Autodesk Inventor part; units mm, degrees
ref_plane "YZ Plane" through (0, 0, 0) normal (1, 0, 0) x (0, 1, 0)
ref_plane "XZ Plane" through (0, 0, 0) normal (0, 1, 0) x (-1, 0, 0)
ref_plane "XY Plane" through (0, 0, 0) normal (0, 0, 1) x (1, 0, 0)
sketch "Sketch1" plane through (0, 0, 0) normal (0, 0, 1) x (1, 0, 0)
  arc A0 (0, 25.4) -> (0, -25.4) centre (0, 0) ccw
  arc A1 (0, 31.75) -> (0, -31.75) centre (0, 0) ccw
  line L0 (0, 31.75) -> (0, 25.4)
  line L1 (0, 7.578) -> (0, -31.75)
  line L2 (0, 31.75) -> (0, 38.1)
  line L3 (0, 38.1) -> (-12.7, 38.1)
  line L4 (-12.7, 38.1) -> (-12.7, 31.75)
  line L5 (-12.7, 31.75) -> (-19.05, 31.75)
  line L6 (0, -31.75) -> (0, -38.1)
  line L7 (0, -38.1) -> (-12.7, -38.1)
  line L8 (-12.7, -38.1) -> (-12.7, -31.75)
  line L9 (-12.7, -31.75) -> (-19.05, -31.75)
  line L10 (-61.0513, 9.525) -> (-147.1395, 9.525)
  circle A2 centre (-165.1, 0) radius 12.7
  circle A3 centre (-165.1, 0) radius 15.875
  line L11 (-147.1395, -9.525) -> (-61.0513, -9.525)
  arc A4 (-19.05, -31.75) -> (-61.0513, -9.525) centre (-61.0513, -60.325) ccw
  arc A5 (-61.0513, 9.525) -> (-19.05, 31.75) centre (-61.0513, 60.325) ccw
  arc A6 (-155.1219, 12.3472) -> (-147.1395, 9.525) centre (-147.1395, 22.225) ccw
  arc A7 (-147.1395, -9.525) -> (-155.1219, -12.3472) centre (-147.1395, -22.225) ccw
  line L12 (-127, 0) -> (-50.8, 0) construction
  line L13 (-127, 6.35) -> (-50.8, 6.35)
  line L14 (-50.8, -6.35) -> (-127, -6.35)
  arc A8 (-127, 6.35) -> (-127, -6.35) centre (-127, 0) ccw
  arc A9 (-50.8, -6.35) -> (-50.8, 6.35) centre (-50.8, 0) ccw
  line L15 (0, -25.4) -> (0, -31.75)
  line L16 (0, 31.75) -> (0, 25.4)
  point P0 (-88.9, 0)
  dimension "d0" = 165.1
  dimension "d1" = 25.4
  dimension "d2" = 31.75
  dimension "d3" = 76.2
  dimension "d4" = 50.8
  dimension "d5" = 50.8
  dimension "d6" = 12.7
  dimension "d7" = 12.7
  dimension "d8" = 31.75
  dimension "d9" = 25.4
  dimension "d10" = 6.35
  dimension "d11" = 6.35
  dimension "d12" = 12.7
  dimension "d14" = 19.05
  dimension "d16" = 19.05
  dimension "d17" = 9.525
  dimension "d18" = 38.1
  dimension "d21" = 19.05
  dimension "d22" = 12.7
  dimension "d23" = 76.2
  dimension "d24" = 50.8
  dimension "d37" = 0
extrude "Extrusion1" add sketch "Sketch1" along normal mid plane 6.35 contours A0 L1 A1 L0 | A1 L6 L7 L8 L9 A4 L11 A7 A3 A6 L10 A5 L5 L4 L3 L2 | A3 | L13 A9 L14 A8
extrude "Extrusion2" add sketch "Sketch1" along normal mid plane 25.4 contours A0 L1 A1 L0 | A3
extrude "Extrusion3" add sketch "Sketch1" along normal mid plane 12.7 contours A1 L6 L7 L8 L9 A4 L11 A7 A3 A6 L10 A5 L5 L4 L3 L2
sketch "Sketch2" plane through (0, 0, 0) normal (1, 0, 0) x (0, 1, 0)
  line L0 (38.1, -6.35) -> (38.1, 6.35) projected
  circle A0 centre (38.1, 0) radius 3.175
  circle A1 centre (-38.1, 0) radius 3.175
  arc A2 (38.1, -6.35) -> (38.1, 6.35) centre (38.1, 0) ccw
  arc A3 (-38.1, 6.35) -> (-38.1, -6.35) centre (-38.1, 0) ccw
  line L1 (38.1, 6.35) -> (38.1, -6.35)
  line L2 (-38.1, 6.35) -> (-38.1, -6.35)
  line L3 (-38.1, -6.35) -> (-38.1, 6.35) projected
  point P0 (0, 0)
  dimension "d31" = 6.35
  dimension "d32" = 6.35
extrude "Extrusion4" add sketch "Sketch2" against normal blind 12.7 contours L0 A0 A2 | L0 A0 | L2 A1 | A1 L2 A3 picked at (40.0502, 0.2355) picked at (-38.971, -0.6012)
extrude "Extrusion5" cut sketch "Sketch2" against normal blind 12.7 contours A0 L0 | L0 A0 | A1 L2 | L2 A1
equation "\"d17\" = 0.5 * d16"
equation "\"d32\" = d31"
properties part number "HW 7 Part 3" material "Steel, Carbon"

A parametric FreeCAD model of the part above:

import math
import FreeCAD as App
import Part
import Sketcher
Q = App.Units.Quantity

doc = App.newDocument("Part")
body = doc.addObject("PartDesign::Body", "Body")

sketch1 = body.newObject("Sketcher::SketchObject", "Sketch")
sketch1.AttachmentSupport = (doc.getObject("XY_Plane"), [""])
sketch1.MapMode = "FlatFace"
sketch1.addGeometry(Part.ArcOfCircle(Part.Circle(App.Vector(0, 0, 0), App.Vector(0, 0, 1), 25.4), math.radians(90), math.radians(270)), False)
sketch1.addGeometry(Part.LineSegment(App.Vector(0, 25.4, 0), App.Vector(0, 38.1, 0)), False)
sketch1.addGeometry(Part.LineSegment(App.Vector(0, 38.1, 0), App.Vector(-12.7, 38.1, 0)), False)
sketch1.addGeometry(Part.LineSegment(App.Vector(-12.7, 38.1, 0), App.Vector(-12.7, 31.75, 0)), False)
sketch1.addGeometry(Part.LineSegment(App.Vector(-12.7, 31.75, 0), App.Vector(-19.05, 31.75, 0)), False)
sketch1.addGeometry(Part.ArcOfCircle(Part.Circle(App.Vector(-61.0513, 60.325, 0), App.Vector(0, 0, 1), 50.8), math.radians(-90), math.radians(-34.228868)), False)
sketch1.addGeometry(Part.LineSegment(App.Vector(-61.0513, 9.525, 0), App.Vector(-147.1395, 9.525, 0)), False)
sketch1.addGeometry(Part.ArcOfCircle(Part.Circle(App.Vector(-147.1395, 22.225, 0), App.Vector(0, 0, 1), 12.699986), math.radians(-128.942203), math.radians(-90)), False)
sketch1.addGeometry(Part.ArcOfCircle(Part.Circle(App.Vector(-165.1, 0, 0), App.Vector(0, 0, 1), 15.875), math.radians(51.057403), math.radians(308.942597)), False)
sketch1.addGeometry(Part.ArcOfCircle(Part.Circle(App.Vector(-147.1395, -22.225, 0), App.Vector(0, 0, 1), 12.7), math.radians(90), math.radians(128.942203)), False)
sketch1.addGeometry(Part.LineSegment(App.Vector(-147.1395, -9.525, 0), App.Vector(-61.0513, -9.525, 0)), False)
sketch1.addGeometry(Part.ArcOfCircle(Part.Circle(App.Vector(-61.0513, -60.325, 0), App.Vector(0, 0, 1), 50.799998), math.radians(34.228868), math.radians(90)), False)
sketch1.addGeometry(Part.LineSegment(App.Vector(-19.05, -31.75, 0), App.Vector(-12.7, -31.75, 0)), False)
sketch1.addGeometry(Part.LineSegment(App.Vector(-12.7, -31.75, 0), App.Vector(-12.7, -38.1, 0)), False)
sketch1.addGeometry(Part.LineSegment(App.Vector(-12.7, -38.1, 0), App.Vector(0, -38.1, 0)), False)
sketch1.addGeometry(Part.LineSegment(App.Vector(0, -38.1, 0), App.Vector(0, -25.4, 0)), False)
sketch1.addGeometry(Part.Circle(App.Vector(-165.1, 0, 0), App.Vector(0, 0, 1), 12.7), False)
sketch1.addConstraint(Sketcher.Constraint("Coincident", 0, 1, 1, 1))
sketch1.addConstraint(Sketcher.Constraint("Coincident", 1, 2, 2, 1))
sketch1.addConstraint(Sketcher.Constraint("Coincident", 2, 2, 3, 1))
sketch1.addConstraint(Sketcher.Constraint("Coincident", 3, 2, 4, 1))
sketch1.addConstraint(Sketcher.Constraint("Coincident", 4, 2, 5, 2))
sketch1.addConstraint(Sketcher.Constraint("Tangent", 5, 1, 6, 1))
sketch1.addConstraint(Sketcher.Constraint("Tangent", 6, 2, 7, 2))
sketch1.addConstraint(Sketcher.Constraint("Tangent", 7, 1, 8, 1))
sketch1.addConstraint(Sketcher.Constraint("Tangent", 8, 2, 9, 2))
sketch1.addConstraint(Sketcher.Constraint("Tangent", 9, 1, 10, 1))
sketch1.addConstraint(Sketcher.Constraint("Tangent", 10, 2, 11, 2))
sketch1.addConstraint(Sketcher.Constraint("Coincident", 11, 1, 12, 1))
sketch1.addConstraint(Sketcher.Constraint("Coincident", 12, 2, 13, 1))
sketch1.addConstraint(Sketcher.Constraint("Coincident", 13, 2, 14, 1))
sketch1.addConstraint(Sketcher.Constraint("Coincident", 14, 2, 15, 1))
sketch1.addConstraint(Sketcher.Constraint("Coincident", 15, 2, 0, 2))
sketch1.addConstraint(Sketcher.Constraint("Vertical", 1))
sketch1.addConstraint(Sketcher.Constraint("Horizontal", 2))
sketch1.addConstraint(Sketcher.Constraint("Vertical", 3))
sketch1.addConstraint(Sketcher.Constraint("Horizontal", 4))
sketch1.addConstraint(Sketcher.Constraint("Horizontal", 6))
sketch1.addConstraint(Sketcher.Constraint("Horizontal", 10))
sketch1.addConstraint(Sketcher.Constraint("Horizontal", 12))
sketch1.addConstraint(Sketcher.Constraint("Vertical", 13))
sketch1.addConstraint(Sketcher.Constraint("Horizontal", 14))
sketch1.addConstraint(Sketcher.Constraint("Vertical", 15))
sketch1.addConstraint(Sketcher.Constraint("Coincident", 0, 3, -1, 1))
sketch1.addConstraint(Sketcher.Constraint("Coincident", 16, 3, 8, 3))
sketch1.addConstraint(Sketcher.Constraint("Equal", 7, 9))
sketch1.addConstraint(Sketcher.Constraint("Equal", 5, 11))
sketch1.addConstraint(Sketcher.Constraint("Equal", 9, 16))
sketch1.addConstraint(Sketcher.Constraint("Symmetric", 1, 2, 14, 2, -1, 1))
sketch1.addConstraint(Sketcher.Constraint("Symmetric", 7, 3, 9, 3, -1))
sketch1.addConstraint(Sketcher.Constraint("Symmetric", 4, 2, 11, 1, -1))
sketch1.addConstraint(Sketcher.Constraint("PointOnObject", 0, 1, -2))
sketch1.addConstraint(Sketcher.Constraint("Vertical", 3, 2, 12, 2))
sketch1.addConstraint(Sketcher.Constraint("Equal", 14, 1))
sketch1.addConstraint(Sketcher.Constraint("Equal", 12, 3))
sketch1.addConstraint(Sketcher.Constraint("Diameter", 16, Q("1 in")))
sketch1.addConstraint(Sketcher.Constraint("Radius", 0, Q("1 in")))
sketch1.addConstraint(Sketcher.Constraint("Radius", 5, Q("2 in")))
sketch1.addConstraint(Sketcher.Constraint("DistanceX", 2, 2, 2, 1, Q("0.5 in")))
sketch1.addConstraint(Sketcher.Constraint("Radius", 8, Q("0.625 in")))
sketch1.addConstraint(Sketcher.Constraint("DistanceX", 4, 2, 4, 1, Q("0.25 in")))
sketch1.addConstraint(Sketcher.Constraint("DistanceX", 8, 3, -1, 1, Q("6.5 in")))
sketch1.addConstraint(Sketcher.Constraint("DistanceY", 9, 3, 6, 2, Q("1.25 in")))
pad1 = body.newObject("PartDesign::Pad", "Pad")
pad1.Profile = sketch1
pad1.Length = Q("0.25 in")
pad1.Midplane = True

sketch2 = body.newObject("Sketcher::SketchObject", "Sketch001")
sketch2.AttachmentSupport = (doc.getObject("XY_Plane"), [""])
sketch2.MapMode = "FlatFace"
sketch2.addGeometry(Part.ArcOfCircle(Part.Circle(App.Vector(0, 0, 0), App.Vector(0, 0, 1), 25.4), math.radians(90), math.radians(270)), False)
sketch2.addGeometry(Part.LineSegment(App.Vector(0, 25.4, 0), App.Vector(0, 31.75, 0)), False)
sketch2.addGeometry(Part.ArcOfCircle(Part.Circle(App.Vector(0, 0, 0), App.Vector(0, 0, 1), 31.75), math.radians(90), math.radians(270)), False)
sketch2.addGeometry(Part.LineSegment(App.Vector(0, -31.75, 0), App.Vector(0, -25.4, 0)), False)
sketch2.addGeometry(Part.Circle(App.Vector(-165.1, 0, 0), App.Vector(0, 0, 1), 15.875), False)
sketch2.addGeometry(Part.Circle(App.Vector(-165.1, 0, 0), App.Vector(0, 0, 1), 12.7), False)
sketch2.addConstraint(Sketcher.Constraint("Coincident", 0, 1, 1, 1))
sketch2.addConstraint(Sketcher.Constraint("Coincident", 1, 2, 2, 1))
sketch2.addConstraint(Sketcher.Constraint("Coincident", 2, 2, 3, 1))
sketch2.addConstraint(Sketcher.Constraint("Coincident", 3, 2, 0, 2))
sketch2.addConstraint(Sketcher.Constraint("Vertical", 1))
sketch2.addConstraint(Sketcher.Constraint("Vertical", 3))
sketch2.addConstraint(Sketcher.Constraint("Coincident", 0, 3, -1, 1))
sketch2.addConstraint(Sketcher.Constraint("Coincident", 2, 3, -1, 1))
sketch2.addConstraint(Sketcher.Constraint("Coincident", 5, 3, 4, 3))
sketch2.addConstraint(Sketcher.Constraint("PointOnObject", 4, 3, -1))
sketch2.addConstraint(Sketcher.Constraint("PointOnObject", 0, 1, -2))
sketch2.addConstraint(Sketcher.Constraint("PointOnObject", 2, 2, -2))
sketch2.addConstraint(Sketcher.Constraint("Diameter", 5, Q("1 in")))
sketch2.addConstraint(Sketcher.Constraint("Radius", 0, Q("1 in")))
sketch2.addConstraint(Sketcher.Constraint("Diameter", 4, Q("1.25 in")))
sketch2.addConstraint(Sketcher.Constraint("Radius", 2, Q("1.25 in")))
sketch2.addConstraint(Sketcher.Constraint("DistanceX", 4, 3, -1, 1, Q("6.5 in")))
pad2 = body.newObject("PartDesign::Pad", "Pad001")
pad2.Profile = sketch2
pad2.Length = Q("1 in")
pad2.Midplane = True

sketch3 = body.newObject("Sketcher::SketchObject", "Sketch002")
sketch3.AttachmentSupport = (doc.getObject("XY_Plane"), [""])
sketch3.MapMode = "FlatFace"
sketch3.addGeometry(Part.ArcOfCircle(Part.Circle(App.Vector(0, 0, 0), App.Vector(0, 0, 1), 31.75), math.radians(90), math.radians(270)), False)
sketch3.addGeometry(Part.LineSegment(App.Vector(0, 31.75, 0), App.Vector(0, 38.1, 0)), False)
sketch3.addGeometry(Part.LineSegment(App.Vector(0, 38.1, 0), App.Vector(-12.7, 38.1, 0)), False)
sketch3.addGeometry(Part.LineSegment(App.Vector(-12.7, 38.1, 0), App.Vector(-12.7, 31.75, 0)), False)
sketch3.addGeometry(Part.LineSegment(App.Vector(-12.7, 31.75, 0), App.Vector(-19.05, 31.75, 0)), False)
sketch3.addGeometry(Part.ArcOfCircle(Part.Circle(App.Vector(-61.0513, 60.325, 0), App.Vector(0, 0, 1), 50.8), math.radians(-90), math.radians(-34.228868)), False)
sketch3.addGeometry(Part.LineSegment(App.Vector(-61.0513, 9.525, 0), App.Vector(-147.1395, 9.525, 0)), False)
sketch3.addGeometry(Part.ArcOfCircle(Part.Circle(App.Vector(-147.1395, 22.225, 0), App.Vector(0, 0, 1), 12.699986), math.radians(-128.942203), math.radians(-90)), False)
sketch3.addGeometry(Part.ArcOfCircle(Part.Circle(App.Vector(-165.1, 0, 0), App.Vector(0, 0, 1), 15.875), math.radians(-51.057403), math.radians(51.057403)), False)
sketch3.addGeometry(Part.ArcOfCircle(Part.Circle(App.Vector(-147.1395, -22.225, 0), App.Vector(0, 0, 1), 12.7), math.radians(90), math.radians(128.942203)), False)
sketch3.addGeometry(Part.LineSegment(App.Vector(-147.1395, -9.525, 0), App.Vector(-61.0513, -9.525, 0)), False)
sketch3.addGeometry(Part.ArcOfCircle(Part.Circle(App.Vector(-61.0513, -60.325, 0), App.Vector(0, 0, 1), 50.799998), math.radians(34.228868), math.radians(90)), False)
sketch3.addGeometry(Part.LineSegment(App.Vector(-19.05, -31.75, 0), App.Vector(-12.7, -31.75, 0)), False)
sketch3.addGeometry(Part.LineSegment(App.Vector(-12.7, -31.75, 0), App.Vector(-12.7, -38.1, 0)), False)
sketch3.addGeometry(Part.LineSegment(App.Vector(-12.7, -38.1, 0), App.Vector(0, -38.1, 0)), False)
sketch3.addGeometry(Part.LineSegment(App.Vector(0, -38.1, 0), App.Vector(0, -31.75, 0)), False)
sketch3.addGeometry(Part.ArcOfCircle(Part.Circle(App.Vector(-127, 0, 0), App.Vector(0, 0, 1), 6.35), math.radians(90), math.radians(270)), False)
sketch3.addGeometry(Part.LineSegment(App.Vector(-127, 6.35, 0), App.Vector(-50.8, 6.35, 0)), False)
sketch3.addGeometry(Part.ArcOfCircle(Part.Circle(App.Vector(-50.8, 0, 0), App.Vector(0, 0, 1), 6.35), math.radians(-90), math.radians(90)), False)
sketch3.addGeometry(Part.LineSegment(App.Vector(-50.8, -6.35, 0), App.Vector(-127, -6.35, 0)), False)
sketch3.addConstraint(Sketcher.Constraint("Coincident", 0, 1, 1, 1))
sketch3.addConstraint(Sketcher.Constraint("Coincident", 1, 2, 2, 1))
sketch3.addConstraint(Sketcher.Constraint("Coincident", 2, 2, 3, 1))
sketch3.addConstraint(Sketcher.Constraint("Coincident", 3, 2, 4, 1))
sketch3.addConstraint(Sketcher.Constraint("Coincident", 4, 2, 5, 2))
sketch3.addConstraint(Sketcher.Constraint("Tangent", 5, 1, 6, 1))
sketch3.addConstraint(Sketcher.Constraint("Tangent", 6, 2, 7, 2))
sketch3.addConstraint(Sketcher.Constraint("Tangent", 7, 1, 8, 2))
sketch3.addConstraint(Sketcher.Constraint("Tangent", 8, 1, 9, 2))
sketch3.addConstraint(Sketcher.Constraint("Tangent", 9, 1, 10, 1))
sketch3.addConstraint(Sketcher.Constraint("Tangent", 10, 2, 11, 2))
sketch3.addConstraint(Sketcher.Constraint("Coincident", 11, 1, 12, 1))
sketch3.addConstraint(Sketcher.Constraint("Coincident", 12, 2, 13, 1))
sketch3.addConstraint(Sketcher.Constraint("Coincident", 13, 2, 14, 1))
sketch3.addConstraint(Sketcher.Constraint("Coincident", 14, 2, 15, 1))
sketch3.addConstraint(Sketcher.Constraint("Coincident", 15, 2, 0, 2))
sketch3.addConstraint(Sketcher.Constraint("Tangent", 16, 1, 17, 1))
sketch3.addConstraint(Sketcher.Constraint("Tangent", 17, 2, 18, 2))
sketch3.addConstraint(Sketcher.Constraint("Tangent", 18, 1, 19, 1))
sketch3.addConstraint(Sketcher.Constraint("Tangent", 19, 2, 16, 2))
sketch3.addConstraint(Sketcher.Constraint("Vertical", 1))
sketch3.addConstraint(Sketcher.Constraint("Horizontal", 2))
sketch3.addConstraint(Sketcher.Constraint("Vertical", 3))
sketch3.addConstraint(Sketcher.Constraint("Horizontal", 4))
sketch3.addConstraint(Sketcher.Constraint("Horizontal", 6))
sketch3.addConstraint(Sketcher.Constraint("Horizontal", 10))
sketch3.addConstraint(Sketcher.Constraint("Horizontal", 12))
sketch3.addConstraint(Sketcher.Constraint("Vertical", 13))
sketch3.addConstraint(Sketcher.Constraint("Horizontal", 14))
sketch3.addConstraint(Sketcher.Constraint("Vertical", 15))
sketch3.addConstraint(Sketcher.Constraint("Horizontal", 17))
sketch3.addConstraint(Sketcher.Constraint("Horizontal", 19))
sketch3.addConstraint(Sketcher.Constraint("Coincident", 0, 3, -1, 1))
sketch3.addConstraint(Sketcher.Constraint("Equal", 7, 9))
sketch3.addConstraint(Sketcher.Constraint("Equal", 5, 11))
sketch3.addConstraint(Sketcher.Constraint("Symmetric", 1, 2, 14, 2, -1, 1))
sketch3.addConstraint(Sketcher.Constraint("Symmetric", 7, 3, 9, 3, -1))
sketch3.addConstraint(Sketcher.Constraint("Symmetric", 4, 2, 11, 1, -1))
sketch3.addConstraint(Sketcher.Constraint("PointOnObject", 16, 3, -1))
sketch3.addConstraint(Sketcher.Constraint("PointOnObject", 0, 1, -2))
sketch3.addConstraint(Sketcher.Constraint("Horizontal", 0, 1, 3, 2))
sketch3.addConstraint(Sketcher.Constraint("Vertical", 3, 2, 12, 2))
sketch3.addConstraint(Sketcher.Constraint("Equal", 12, 1))
sketch3.addConstraint(Sketcher.Constraint("Radius", 5, Q("2 in")))
sketch3.addConstraint(Sketcher.Constraint("Radius", 7, Q("0.5 in")))
sketch3.addConstraint(Sketcher.Constraint("DistanceX", 17, 1, 17, 2, Q("3 in")))
sketch3.addConstraint(Sketcher.Constraint("Radius", 0, Q("1.25 in")))
sketch3.addConstraint(Sketcher.Constraint("Radius", 16, Q("0.25 in")))
sketch3.addConstraint(Sketcher.Constraint("DistanceX", 2, 2, 2, 1, Q("0.5 in")))
sketch3.addConstraint(Sketcher.Constraint("DistanceX", 18, 3, -1, 1, Q("2 in")))
sketch3.addConstraint(Sketcher.Constraint("Radius", 8, Q("0.625 in")))
sketch3.addConstraint(Sketcher.Constraint("DistanceX", 4, 2, 4, 1, Q("0.25 in")))
sketch3.addConstraint(Sketcher.Constraint("DistanceX", 8, 3, -1, 1, Q("6.5 in")))
sketch3.addConstraint(Sketcher.Constraint("DistanceY", 9, 3, 6, 2, Q("1.25 in")))
pad3 = body.newObject("PartDesign::Pad", "Pad002")
pad3.Profile = sketch3
pad3.Length = Q("0.5 in")
pad3.Midplane = True

sketch4 = body.newObject("Sketcher::SketchObject", "Sketch003")
sketch4.AttachmentSupport = (doc.getObject("YZ_Plane"), [""])
sketch4.MapMode = "FlatFace"
sketch4.addGeometry(Part.ArcOfCircle(Part.Circle(App.Vector(38.1, 0, 0), App.Vector(0, 0, 1), 6.35), math.radians(-90), math.radians(90)), False)
sketch4.addGeometry(Part.LineSegment(App.Vector(38.1, 6.35, 0), App.Vector(38.1, -6.35, 0)), False)
sketch4.addGeometry(Part.ArcOfCircle(Part.Circle(App.Vector(-38.1, 0, 0), App.Vector(0, 0, 1), 6.35), math.radians(90), math.radians(270)), False)
sketch4.addGeometry(Part.LineSegment(App.Vector(-38.1, -6.35, 0), App.Vector(-38.1, 6.35, 0)), False)
sketch4.addConstraint(Sketcher.Constraint("Coincident", 0, 1, 1, 2))
sketch4.addConstraint(Sketcher.Constraint("Coincident", 1, 1, 0, 2))
sketch4.addConstraint(Sketcher.Constraint("Coincident", 2, 1, 3, 2))
sketch4.addConstraint(Sketcher.Constraint("Coincident", 3, 1, 2, 2))
sketch4.addConstraint(Sketcher.Constraint("Vertical", 1))
sketch4.addConstraint(Sketcher.Constraint("Vertical", 3))
sketch4.addConstraint(Sketcher.Constraint("Equal", 0, 2))
sketch4.addConstraint(Sketcher.Constraint("Symmetric", 0, 3, 2, 3, -1, 1))
sketch4.addConstraint(Sketcher.Constraint("Symmetric", 1, 1, 2, 1, -2))
sketch4.addConstraint(Sketcher.Constraint("Radius", 0, Q("0.25 in")))
sketch4.addConstraint(Sketcher.Constraint("DistanceX", 2, 3, 0, 3, Q("3 in")))
sketch4.addConstraint(Sketcher.Constraint("DistanceX", 2, 3, 0, 1, Q("3 in")))
pad4 = body.newObject("PartDesign::Pad", "Pad003")
pad4.Profile = sketch4
pad4.Length = Q("0.5 in")
pad4.Reversed = True

sketch5 = body.newObject("Sketcher::SketchObject", "Sketch004")
sketch5.AttachmentSupport = (doc.getObject("YZ_Plane"), [""])
sketch5.MapMode = "FlatFace"
sketch5.addGeometry(Part.Circle(App.Vector(38.1, 0, 0), App.Vector(0, 0, 1), 3.175), False)
sketch5.addGeometry(Part.Circle(App.Vector(-38.1, 0, 0), App.Vector(0, 0, 1), 3.175), False)
sketch5.addConstraint(Sketcher.Constraint("Equal", 0, 1))
sketch5.addConstraint(Sketcher.Constraint("Symmetric", 0, 3, 1, 3, -1, 1))
sketch5.addConstraint(Sketcher.Constraint("PointOnObject", 0, 3, -1))
sketch5.addConstraint(Sketcher.Constraint("Diameter", 0, Q("0.25 in")))
sketch5.addConstraint(Sketcher.Constraint("DistanceX", 1, 3, 0, 3, Q("3 in")))
pocket1 = body.newObject("PartDesign::Pocket", "Pocket")
pocket1.Profile = sketch5
pocket1.Length = Q("0.5 in")

doc.recompute()
